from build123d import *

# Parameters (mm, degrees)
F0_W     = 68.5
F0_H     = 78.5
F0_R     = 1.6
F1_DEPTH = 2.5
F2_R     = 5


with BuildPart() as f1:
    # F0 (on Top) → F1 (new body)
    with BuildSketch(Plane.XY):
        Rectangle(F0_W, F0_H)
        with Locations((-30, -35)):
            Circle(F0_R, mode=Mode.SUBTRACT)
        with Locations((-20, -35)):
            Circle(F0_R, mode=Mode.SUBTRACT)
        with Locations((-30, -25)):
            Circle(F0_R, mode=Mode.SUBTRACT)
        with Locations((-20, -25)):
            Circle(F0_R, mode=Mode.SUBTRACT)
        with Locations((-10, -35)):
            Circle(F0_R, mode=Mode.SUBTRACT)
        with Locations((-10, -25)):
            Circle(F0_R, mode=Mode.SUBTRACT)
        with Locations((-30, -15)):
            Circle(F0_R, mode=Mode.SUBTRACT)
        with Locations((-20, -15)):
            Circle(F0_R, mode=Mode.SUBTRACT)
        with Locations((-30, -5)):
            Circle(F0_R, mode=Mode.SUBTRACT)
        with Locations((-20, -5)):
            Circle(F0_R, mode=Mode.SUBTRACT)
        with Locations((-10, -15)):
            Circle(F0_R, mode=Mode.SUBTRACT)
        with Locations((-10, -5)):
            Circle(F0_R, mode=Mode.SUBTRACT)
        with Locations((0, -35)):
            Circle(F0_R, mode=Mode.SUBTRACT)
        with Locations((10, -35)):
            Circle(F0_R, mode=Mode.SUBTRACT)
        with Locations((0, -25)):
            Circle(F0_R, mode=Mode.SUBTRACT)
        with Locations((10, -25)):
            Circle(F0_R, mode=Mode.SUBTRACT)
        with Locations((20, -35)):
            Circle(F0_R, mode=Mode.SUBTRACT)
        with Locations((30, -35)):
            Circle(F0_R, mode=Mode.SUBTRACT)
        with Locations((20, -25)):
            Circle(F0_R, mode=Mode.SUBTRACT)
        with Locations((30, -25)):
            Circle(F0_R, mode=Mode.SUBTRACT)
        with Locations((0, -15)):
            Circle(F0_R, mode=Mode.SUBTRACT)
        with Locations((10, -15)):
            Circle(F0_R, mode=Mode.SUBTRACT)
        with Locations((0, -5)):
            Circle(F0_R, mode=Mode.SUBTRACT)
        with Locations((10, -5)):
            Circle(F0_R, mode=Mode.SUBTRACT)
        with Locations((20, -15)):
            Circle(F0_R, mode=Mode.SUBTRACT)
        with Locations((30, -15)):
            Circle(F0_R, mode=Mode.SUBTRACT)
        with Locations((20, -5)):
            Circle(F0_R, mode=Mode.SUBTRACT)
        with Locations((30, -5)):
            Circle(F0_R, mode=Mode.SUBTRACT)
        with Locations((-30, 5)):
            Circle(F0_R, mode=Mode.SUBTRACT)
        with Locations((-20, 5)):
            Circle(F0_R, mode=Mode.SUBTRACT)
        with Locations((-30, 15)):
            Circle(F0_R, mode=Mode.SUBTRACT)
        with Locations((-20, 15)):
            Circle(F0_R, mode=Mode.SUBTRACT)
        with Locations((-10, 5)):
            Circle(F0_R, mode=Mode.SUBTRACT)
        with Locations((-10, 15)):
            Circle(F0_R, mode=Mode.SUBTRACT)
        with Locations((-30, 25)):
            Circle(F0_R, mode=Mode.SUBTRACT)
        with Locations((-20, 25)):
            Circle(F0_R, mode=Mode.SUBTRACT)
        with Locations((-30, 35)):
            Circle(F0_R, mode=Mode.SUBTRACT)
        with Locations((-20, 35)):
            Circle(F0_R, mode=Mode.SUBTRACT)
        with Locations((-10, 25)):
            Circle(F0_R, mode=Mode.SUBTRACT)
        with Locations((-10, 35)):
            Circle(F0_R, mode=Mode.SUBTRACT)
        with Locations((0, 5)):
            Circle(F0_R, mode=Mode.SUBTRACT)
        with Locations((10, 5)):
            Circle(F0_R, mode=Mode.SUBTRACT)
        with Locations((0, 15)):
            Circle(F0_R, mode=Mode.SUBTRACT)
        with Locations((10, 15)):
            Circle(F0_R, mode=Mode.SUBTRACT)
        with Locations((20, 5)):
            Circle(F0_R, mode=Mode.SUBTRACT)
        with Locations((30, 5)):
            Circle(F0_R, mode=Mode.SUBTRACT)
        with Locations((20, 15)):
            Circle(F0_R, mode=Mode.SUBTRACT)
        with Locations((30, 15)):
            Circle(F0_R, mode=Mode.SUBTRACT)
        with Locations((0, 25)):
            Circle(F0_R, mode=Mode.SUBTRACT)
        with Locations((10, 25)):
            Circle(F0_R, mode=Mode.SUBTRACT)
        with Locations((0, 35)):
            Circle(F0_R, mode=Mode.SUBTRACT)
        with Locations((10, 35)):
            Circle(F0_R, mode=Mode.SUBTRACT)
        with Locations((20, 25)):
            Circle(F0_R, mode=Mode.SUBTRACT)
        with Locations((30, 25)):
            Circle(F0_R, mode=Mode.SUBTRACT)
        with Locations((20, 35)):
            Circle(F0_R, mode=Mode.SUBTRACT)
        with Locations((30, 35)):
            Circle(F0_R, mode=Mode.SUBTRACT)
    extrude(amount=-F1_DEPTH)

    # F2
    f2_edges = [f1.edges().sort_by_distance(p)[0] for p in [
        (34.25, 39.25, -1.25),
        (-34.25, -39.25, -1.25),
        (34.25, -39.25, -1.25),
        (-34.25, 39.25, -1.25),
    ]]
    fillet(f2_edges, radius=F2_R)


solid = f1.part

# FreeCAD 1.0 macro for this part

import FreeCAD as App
import Part
import Sketcher
from FreeCAD import Vector


def edges_at(feature, points):
    """Names of the edges that pass closest to the given points."""
    edges = feature.Shape.Edges
    near = lambda p: min(range(len(edges)), key=lambda i: edges[i].distToShape(Part.Vertex(*p))[0])
    return sorted({f"Edge{near(p) + 1}" for p in points})


def add_polygon(sketch, points):
    """Adds a closed chain of lines whose ends are joined by coincident constraints."""
    first, n = sketch.GeometryCount, len(points)
    for a, b in zip(points, points[1:] + points[:1]):
        sketch.addGeometry(Part.LineSegment(App.Vector(*a, 0), App.Vector(*b, 0)), False)
    for i in range(n):
        sketch.addConstraint(Sketcher.Constraint("Coincident", first + i, 2, first + (i + 1) % n, 1))

doc = App.newDocument("Part")
body = doc.addObject("PartDesign::Body", "Body")

# Sketch on XY plane
sketch1 = body.newObject("Sketcher::SketchObject", "Sketch")
sketch1.AttachmentSupport = (doc.getObject("XY_Plane"), [""])
sketch1.MapMode = "FlatFace"
add_polygon(sketch1, [(-34.2, 39.2), (-34.2, -39.2), (34.2, -39.2), (34.2, 39.2)])  # lines 0-3
sketch1.addGeometry(Part.Circle(Vector(-30, -35, 0), Vector(0, 0, 1), 1.6), False)  # 4
sketch1.addGeometry(Part.Circle(Vector(-20, -35, 0), Vector(0, 0, 1), 1.6), False)  # 5
sketch1.addGeometry(Part.Circle(Vector(-30, -25, 0), Vector(0, 0, 1), 1.6), False)  # 6
sketch1.addGeometry(Part.Circle(Vector(-20, -25, 0), Vector(0, 0, 1), 1.6), False)  # 7
sketch1.addGeometry(Part.Circle(Vector(-10, -35, 0), Vector(0, 0, 1), 1.6), False)  # 8
sketch1.addGeometry(Part.Circle(Vector(0, -35, 0), Vector(0, 0, 1), 1.6), False)  # 9
sketch1.addGeometry(Part.Circle(Vector(-10, -25, 0), Vector(0, 0, 1), 1.6), False)  # 10
sketch1.addGeometry(Part.Circle(Vector(0, -25, 0), Vector(0, 0, 1), 1.6), False)  # 11
sketch1.addGeometry(Part.Circle(Vector(-30, -15, 0), Vector(0, 0, 1), 1.6), False)  # 12
sketch1.addGeometry(Part.Circle(Vector(-20, -15, 0), Vector(0, 0, 1), 1.6), False)  # 13
sketch1.addGeometry(Part.Circle(Vector(-30, -5, 0), Vector(0, 0, 1), 1.6), False)  # 14
sketch1.addGeometry(Part.Circle(Vector(-20, -5, 0), Vector(0, 0, 1), 1.6), False)  # 15
sketch1.addGeometry(Part.Circle(Vector(-10, -15, 0), Vector(0, 0, 1), 1.6), False)  # 16
sketch1.addGeometry(Part.Circle(Vector(0, -15, 0), Vector(0, 0, 1), 1.6), False)  # 17
sketch1.addGeometry(Part.Circle(Vector(-10, -5, 0), Vector(0, 0, 1), 1.6), False)  # 18
sketch1.addGeometry(Part.Circle(Vector(0, -5, 0), Vector(0, 0, 1), 1.6), False)  # 19
sketch1.addGeometry(Part.Circle(Vector(10, -35, 0), Vector(0, 0, 1), 1.6), False)  # 20
sketch1.addGeometry(Part.Circle(Vector(10, -25, 0), Vector(0, 0, 1), 1.6), False)  # 21
sketch1.addGeometry(Part.Circle(Vector(20, -35, 0), Vector(0, 0, 1), 1.6), False)  # 22
sketch1.addGeometry(Part.Circle(Vector(30, -35, 0), Vector(0, 0, 1), 1.6), False)  # 23
sketch1.addGeometry(Part.Circle(Vector(20, -25, 0), Vector(0, 0, 1), 1.6), False)  # 24
sketch1.addGeometry(Part.Circle(Vector(30, -25, 0), Vector(0, 0, 1), 1.6), False)  # 25
sketch1.addGeometry(Part.Circle(Vector(10, -15, 0), Vector(0, 0, 1), 1.6), False)  # 26
sketch1.addGeometry(Part.Circle(Vector(10, -5, 0), Vector(0, 0, 1), 1.6), False)  # 27
sketch1.addGeometry(Part.Circle(Vector(20, -15, 0), Vector(0, 0, 1), 1.6), False)  # 28
sketch1.addGeometry(Part.Circle(Vector(30, -15, 0), Vector(0, 0, 1), 1.6), False)  # 29
sketch1.addGeometry(Part.Circle(Vector(20, -5, 0), Vector(0, 0, 1), 1.6), False)  # 30
sketch1.addGeometry(Part.Circle(Vector(30, -5, 0), Vector(0, 0, 1), 1.6), False)  # 31
sketch1.addGeometry(Part.Circle(Vector(-30, 5, 0), Vector(0, 0, 1), 1.6), False)  # 32
sketch1.addGeometry(Part.Circle(Vector(-20, 5, 0), Vector(0, 0, 1), 1.6), False)  # 33
sketch1.addGeometry(Part.Circle(Vector(-30, 15, 0), Vector(0, 0, 1), 1.6), False)  # 34
sketch1.addGeometry(Part.Circle(Vector(-20, 15, 0), Vector(0, 0, 1), 1.6), False)  # 35
sketch1.addGeometry(Part.Circle(Vector(-10, 5, 0), Vector(0, 0, 1), 1.6), False)  # 36
sketch1.addGeometry(Part.Circle(Vector(0, 5, 0), Vector(0, 0, 1), 1.6), False)  # 37
sketch1.addGeometry(Part.Circle(Vector(-10, 15, 0), Vector(0, 0, 1), 1.6), False)  # 38
sketch1.addGeometry(Part.Circle(Vector(0, 15, 0), Vector(0, 0, 1), 1.6), False)  # 39
sketch1.addGeometry(Part.Circle(Vector(-30, 25, 0), Vector(0, 0, 1), 1.6), False)  # 40
sketch1.addGeometry(Part.Circle(Vector(-20, 25, 0), Vector(0, 0, 1), 1.6), False)  # 41
sketch1.addGeometry(Part.Circle(Vector(-30, 35, 0), Vector(0, 0, 1), 1.6), False)  # 42
sketch1.addGeometry(Part.Circle(Vector(-20, 35, 0), Vector(0, 0, 1), 1.6), False)  # 43
sketch1.addGeometry(Part.Circle(Vector(-10, 25, 0), Vector(0, 0, 1), 1.6), False)  # 44
sketch1.addGeometry(Part.Circle(Vector(0, 25, 0), Vector(0, 0, 1), 1.6), False)  # 45
sketch1.addGeometry(Part.Circle(Vector(-10, 35, 0), Vector(0, 0, 1), 1.6), False)  # 46
sketch1.addGeometry(Part.Circle(Vector(0, 35, 0), Vector(0, 0, 1), 1.6), False)  # 47
sketch1.addGeometry(Part.Circle(Vector(10, 5, 0), Vector(0, 0, 1), 1.6), False)  # 48
sketch1.addGeometry(Part.Circle(Vector(10, 15, 0), Vector(0, 0, 1), 1.6), False)  # 49
sketch1.addGeometry(Part.Circle(Vector(20, 5, 0), Vector(0, 0, 1), 1.6), False)  # 50
sketch1.addGeometry(Part.Circle(Vector(30, 5, 0), Vector(0, 0, 1), 1.6), False)  # 51
sketch1.addGeometry(Part.Circle(Vector(20, 15, 0), Vector(0, 0, 1), 1.6), False)  # 52
sketch1.addGeometry(Part.Circle(Vector(30, 15, 0), Vector(0, 0, 1), 1.6), False)  # 53
sketch1.addGeometry(Part.Circle(Vector(10, 25, 0), Vector(0, 0, 1), 1.6), False)  # 54
sketch1.addGeometry(Part.Circle(Vector(10, 35, 0), Vector(0, 0, 1), 1.6), False)  # 55
sketch1.addGeometry(Part.Circle(Vector(20, 25, 0), Vector(0, 0, 1), 1.6), False)  # 56
sketch1.addGeometry(Part.Circle(Vector(30, 25, 0), Vector(0, 0, 1), 1.6), False)  # 57
sketch1.addGeometry(Part.Circle(Vector(20, 35, 0), Vector(0, 0, 1), 1.6), False)  # 58
sketch1.addGeometry(Part.Circle(Vector(30, 35, 0), Vector(0, 0, 1), 1.6), False)  # 59
sketch1.addConstraint([
    Sketcher.Constraint("Vertical", 0),
    Sketcher.Constraint("Horizontal", 1),
    Sketcher.Constraint("Vertical", 2),
    Sketcher.Constraint("Horizontal", 3),
    Sketcher.Constraint("Equal", 4, 5),
    Sketcher.Constraint("Equal", 5, 6),
    Sketcher.Constraint("Equal", 6, 7),
    Sketcher.Constraint("Equal", 7, 8),
    Sketcher.Constraint("Equal", 8, 9),
    Sketcher.Constraint("Equal", 9, 10),
    Sketcher.Constraint("Equal", 10, 11),
    Sketcher.Constraint("Equal", 11, 12),
    Sketcher.Constraint("Equal", 12, 13),
    Sketcher.Constraint("Equal", 13, 14),
    Sketcher.Constraint("Equal", 14, 15),
    Sketcher.Constraint("Equal", 15, 16),
    Sketcher.Constraint("Equal", 16, 17),
    Sketcher.Constraint("Equal", 17, 18),
    Sketcher.Constraint("Equal", 18, 19),
    Sketcher.Constraint("Equal", 19, 20),
    Sketcher.Constraint("Equal", 20, 21),
    Sketcher.Constraint("Equal", 21, 22),
    Sketcher.Constraint("Equal", 22, 23),
    Sketcher.Constraint("Equal", 23, 24),
    Sketcher.Constraint("Equal", 24, 25),
    Sketcher.Constraint("Equal", 25, 26),
    Sketcher.Constraint("Equal", 26, 27),
    Sketcher.Constraint("Equal", 27, 28),
    Sketcher.Constraint("Equal", 28, 29),
    Sketcher.Constraint("Equal", 29, 30),
    Sketcher.Constraint("Equal", 30, 31),
    Sketcher.Constraint("Equal", 31, 32),
    Sketcher.Constraint("Equal", 32, 33),
    Sketcher.Constraint("Equal", 33, 34),
    Sketcher.Constraint("Equal", 34, 35),
    Sketcher.Constraint("Equal", 35, 36),
    Sketcher.Constraint("Equal", 36, 37),
    Sketcher.Constraint("Equal", 37, 38),
    Sketcher.Constraint("Equal", 38, 39),
    Sketcher.Constraint("Equal", 39, 40),
    Sketcher.Constraint("Equal", 40, 41),
    Sketcher.Constraint("Equal", 41, 42),
    Sketcher.Constraint("Equal", 42, 43),
    Sketcher.Constraint("Equal", 43, 44),
    Sketcher.Constraint("Equal", 44, 45),
    Sketcher.Constraint("Equal", 45, 46),
    Sketcher.Constraint("Equal", 46, 47),
    Sketcher.Constraint("Equal", 47, 48),
    Sketcher.Constraint("Equal", 48, 49),
    Sketcher.Constraint("Equal", 49, 50),
    Sketcher.Constraint("Equal", 50, 51),
    Sketcher.Constraint("Equal", 51, 52),
    Sketcher.Constraint("Equal", 52, 53),
    Sketcher.Constraint("Equal", 53, 54),
    Sketcher.Constraint("Equal", 54, 55),
    Sketcher.Constraint("Equal", 55, 56),
    Sketcher.Constraint("Equal", 56, 57),
    Sketcher.Constraint("Equal", 57, 58),
    Sketcher.Constraint("Equal", 58, 59),
    Sketcher.Constraint("Symmetric", 31, 3, 32, 3, -1, 1),
    Sketcher.Constraint("Symmetric", 30, 3, 33, 3, -1, 1),
    Sketcher.Constraint("Symmetric", 29, 3, 34, 3, -1, 1),
    Sketcher.Constraint("Symmetric", 28, 3, 35, 3, -1, 1),
    Sketcher.Constraint("Symmetric", 27, 3, 36, 3, -1, 1),
    Sketcher.Constraint("Symmetric", 19, 3, 37, 3, -1, 1),
    Sketcher.Constraint("Symmetric", 26, 3, 38, 3, -1, 1),
    Sketcher.Constraint("Symmetric", 17, 3, 39, 3, -1, 1),
    Sketcher.Constraint("Symmetric", 25, 3, 40, 3, -1, 1),
    Sketcher.Constraint("Symmetric", 24, 3, 41, 3, -1, 1),
    Sketcher.Constraint("Symmetric", 23, 3, 42, 3, -1, 1),
    Sketcher.Constraint("Symmetric", 22, 3, 43, 3, -1, 1),
    Sketcher.Constraint("Symmetric", 21, 3, 44, 3, -1, 1),
    Sketcher.Constraint("Symmetric", 11, 3, 45, 3, -1, 1),
    Sketcher.Constraint("Symmetric", 20, 3, 46, 3, -1, 1),
    Sketcher.Constraint("Symmetric", 9, 3, 47, 3, -1, 1),
    Sketcher.Constraint("Symmetric", 18, 3, 48, 3, -1, 1),
    Sketcher.Constraint("Symmetric", 16, 3, 49, 3, -1, 1),
    Sketcher.Constraint("Symmetric", 15, 3, 50, 3, -1, 1),
    Sketcher.Constraint("Symmetric", 14, 3, 51, 3, -1, 1),
    Sketcher.Constraint("Symmetric", 13, 3, 52, 3, -1, 1),
    Sketcher.Constraint("Symmetric", 12, 3, 53, 3, -1, 1),
    Sketcher.Constraint("Symmetric", 10, 3, 54, 3, -1, 1),
    Sketcher.Constraint("Symmetric", 8, 3, 55, 3, -1, 1),
    Sketcher.Constraint("Symmetric", 7, 3, 56, 3, -1, 1),
    Sketcher.Constraint("Symmetric", 6, 3, 57, 3, -1, 1),
    Sketcher.Constraint("Symmetric", 5, 3, 58, 3, -1, 1),
    Sketcher.Constraint("Symmetric", 4, 3, 59, 3, -1, 1),
    Sketcher.Constraint("Symmetric", 0, 2, 2, 2, -1, 1),
    Sketcher.Constraint("Symmetric", 8, 3, 20, 3, -2),
    Sketcher.Constraint("Symmetric", 10, 3, 21, 3, -2),
    Sketcher.Constraint("Symmetric", 5, 3, 22, 3, -2),
    Sketcher.Constraint("Symmetric", 4, 3, 23, 3, -2),
    Sketcher.Constraint("Symmetric", 7, 3, 24, 3, -2),
    Sketcher.Constraint("Symmetric", 6, 3, 25, 3, -2),
    Sketcher.Constraint("Symmetric", 16, 3, 26, 3, -2),
    Sketcher.Constraint("Symmetric", 18, 3, 27, 3, -2),
    Sketcher.Constraint("Symmetric", 13, 3, 28, 3, -2),
    Sketcher.Constraint("Symmetric", 12, 3, 29, 3, -2),
    Sketcher.Constraint("Symmetric", 15, 3, 30, 3, -2),
    Sketcher.Constraint("Symmetric", 14, 3, 31, 3, -2),
    Sketcher.Constraint("PointOnObject", 9, 3, -2),
    Sketcher.Constraint("PointOnObject", 11, 3, -2),
    Sketcher.Constraint("PointOnObject", 17, 3, -2),
    Sketcher.Constraint("PointOnObject", 19, 3, -2),
    Sketcher.Constraint("Horizontal", 4, 3, 5, 3),
    Sketcher.Constraint("Horizontal", 6, 3, 7, 3),
    Sketcher.Constraint("Horizontal", 5, 3, 8, 3),
    Sketcher.Constraint("Horizontal", 8, 3, 9, 3),
    Sketcher.Constraint("Horizontal", 7, 3, 10, 3),
    Sketcher.Constraint("Horizontal", 10, 3, 11, 3),
    Sketcher.Constraint("Horizontal", 12, 3, 13, 3),
    Sketcher.Constraint("Horizontal", 14, 3, 15, 3),
    Sketcher.Constraint("Horizontal", 13, 3, 16, 3),
    Sketcher.Constraint("Horizontal", 16, 3, 17, 3),
    Sketcher.Constraint("Horizontal", 15, 3, 18, 3),
    Sketcher.Constraint("Horizontal", 18, 3, 19, 3),
    Sketcher.Constraint("Vertical", 4, 3, 6, 3),
    Sketcher.Constraint("Vertical", 5, 3, 7, 3),
    Sketcher.Constraint("Vertical", 8, 3, 10, 3),
    Sketcher.Constraint("Vertical", 6, 3, 12, 3),
    Sketcher.Constraint("Vertical", 7, 3, 13, 3),
    Sketcher.Constraint("Vertical", 12, 3, 14, 3),
    Sketcher.Constraint("Vertical", 13, 3, 15, 3),
    Sketcher.Constraint("Vertical", 10, 3, 16, 3),
    Sketcher.Constraint("Vertical", 16, 3, 18, 3),
    Sketcher.Constraint("Diameter", 4, 3.2),
    Sketcher.Constraint("DistanceX", 1, 1, 1, 2, 68.5),
    Sketcher.Constraint("DistanceY", 0, 2, 0, 1, 78.5),
    Sketcher.Constraint("DistanceX", 4, 3, -1, 1, 30.0),
    Sketcher.Constraint("DistanceY", 4, 3, -1, 1, 35.0),
    Sketcher.Constraint("DistanceX", 5, 3, -1, 1, 20.0),
    Sketcher.Constraint("DistanceY", 6, 3, -1, 1, 25.0),
    Sketcher.Constraint("DistanceX", 8, 3, -1, 1, 10.0),
    Sketcher.Constraint("DistanceY", 12, 3, -1, 1, 15.0),
    Sketcher.Constraint("DistanceY", 14, 3, -1, 1, 5.0),
])
pad1 = body.newObject("PartDesign::Pad", "Pad")
pad1.Profile = sketch1
pad1.Length = 2.5
pad1.Reversed = True
doc.recompute()

fillet = body.newObject("PartDesign::Fillet", "Fillet")
fillet.Base = (pad1, edges_at(pad1, [
    (34.25, 39.25, -1.25),
    (-34.25, -39.25, -1.25),
    (34.25, -39.25, -1.25),
    (-34.25, 39.25, -1.25),
]))
fillet.Radius = 5

doc.recompute()
